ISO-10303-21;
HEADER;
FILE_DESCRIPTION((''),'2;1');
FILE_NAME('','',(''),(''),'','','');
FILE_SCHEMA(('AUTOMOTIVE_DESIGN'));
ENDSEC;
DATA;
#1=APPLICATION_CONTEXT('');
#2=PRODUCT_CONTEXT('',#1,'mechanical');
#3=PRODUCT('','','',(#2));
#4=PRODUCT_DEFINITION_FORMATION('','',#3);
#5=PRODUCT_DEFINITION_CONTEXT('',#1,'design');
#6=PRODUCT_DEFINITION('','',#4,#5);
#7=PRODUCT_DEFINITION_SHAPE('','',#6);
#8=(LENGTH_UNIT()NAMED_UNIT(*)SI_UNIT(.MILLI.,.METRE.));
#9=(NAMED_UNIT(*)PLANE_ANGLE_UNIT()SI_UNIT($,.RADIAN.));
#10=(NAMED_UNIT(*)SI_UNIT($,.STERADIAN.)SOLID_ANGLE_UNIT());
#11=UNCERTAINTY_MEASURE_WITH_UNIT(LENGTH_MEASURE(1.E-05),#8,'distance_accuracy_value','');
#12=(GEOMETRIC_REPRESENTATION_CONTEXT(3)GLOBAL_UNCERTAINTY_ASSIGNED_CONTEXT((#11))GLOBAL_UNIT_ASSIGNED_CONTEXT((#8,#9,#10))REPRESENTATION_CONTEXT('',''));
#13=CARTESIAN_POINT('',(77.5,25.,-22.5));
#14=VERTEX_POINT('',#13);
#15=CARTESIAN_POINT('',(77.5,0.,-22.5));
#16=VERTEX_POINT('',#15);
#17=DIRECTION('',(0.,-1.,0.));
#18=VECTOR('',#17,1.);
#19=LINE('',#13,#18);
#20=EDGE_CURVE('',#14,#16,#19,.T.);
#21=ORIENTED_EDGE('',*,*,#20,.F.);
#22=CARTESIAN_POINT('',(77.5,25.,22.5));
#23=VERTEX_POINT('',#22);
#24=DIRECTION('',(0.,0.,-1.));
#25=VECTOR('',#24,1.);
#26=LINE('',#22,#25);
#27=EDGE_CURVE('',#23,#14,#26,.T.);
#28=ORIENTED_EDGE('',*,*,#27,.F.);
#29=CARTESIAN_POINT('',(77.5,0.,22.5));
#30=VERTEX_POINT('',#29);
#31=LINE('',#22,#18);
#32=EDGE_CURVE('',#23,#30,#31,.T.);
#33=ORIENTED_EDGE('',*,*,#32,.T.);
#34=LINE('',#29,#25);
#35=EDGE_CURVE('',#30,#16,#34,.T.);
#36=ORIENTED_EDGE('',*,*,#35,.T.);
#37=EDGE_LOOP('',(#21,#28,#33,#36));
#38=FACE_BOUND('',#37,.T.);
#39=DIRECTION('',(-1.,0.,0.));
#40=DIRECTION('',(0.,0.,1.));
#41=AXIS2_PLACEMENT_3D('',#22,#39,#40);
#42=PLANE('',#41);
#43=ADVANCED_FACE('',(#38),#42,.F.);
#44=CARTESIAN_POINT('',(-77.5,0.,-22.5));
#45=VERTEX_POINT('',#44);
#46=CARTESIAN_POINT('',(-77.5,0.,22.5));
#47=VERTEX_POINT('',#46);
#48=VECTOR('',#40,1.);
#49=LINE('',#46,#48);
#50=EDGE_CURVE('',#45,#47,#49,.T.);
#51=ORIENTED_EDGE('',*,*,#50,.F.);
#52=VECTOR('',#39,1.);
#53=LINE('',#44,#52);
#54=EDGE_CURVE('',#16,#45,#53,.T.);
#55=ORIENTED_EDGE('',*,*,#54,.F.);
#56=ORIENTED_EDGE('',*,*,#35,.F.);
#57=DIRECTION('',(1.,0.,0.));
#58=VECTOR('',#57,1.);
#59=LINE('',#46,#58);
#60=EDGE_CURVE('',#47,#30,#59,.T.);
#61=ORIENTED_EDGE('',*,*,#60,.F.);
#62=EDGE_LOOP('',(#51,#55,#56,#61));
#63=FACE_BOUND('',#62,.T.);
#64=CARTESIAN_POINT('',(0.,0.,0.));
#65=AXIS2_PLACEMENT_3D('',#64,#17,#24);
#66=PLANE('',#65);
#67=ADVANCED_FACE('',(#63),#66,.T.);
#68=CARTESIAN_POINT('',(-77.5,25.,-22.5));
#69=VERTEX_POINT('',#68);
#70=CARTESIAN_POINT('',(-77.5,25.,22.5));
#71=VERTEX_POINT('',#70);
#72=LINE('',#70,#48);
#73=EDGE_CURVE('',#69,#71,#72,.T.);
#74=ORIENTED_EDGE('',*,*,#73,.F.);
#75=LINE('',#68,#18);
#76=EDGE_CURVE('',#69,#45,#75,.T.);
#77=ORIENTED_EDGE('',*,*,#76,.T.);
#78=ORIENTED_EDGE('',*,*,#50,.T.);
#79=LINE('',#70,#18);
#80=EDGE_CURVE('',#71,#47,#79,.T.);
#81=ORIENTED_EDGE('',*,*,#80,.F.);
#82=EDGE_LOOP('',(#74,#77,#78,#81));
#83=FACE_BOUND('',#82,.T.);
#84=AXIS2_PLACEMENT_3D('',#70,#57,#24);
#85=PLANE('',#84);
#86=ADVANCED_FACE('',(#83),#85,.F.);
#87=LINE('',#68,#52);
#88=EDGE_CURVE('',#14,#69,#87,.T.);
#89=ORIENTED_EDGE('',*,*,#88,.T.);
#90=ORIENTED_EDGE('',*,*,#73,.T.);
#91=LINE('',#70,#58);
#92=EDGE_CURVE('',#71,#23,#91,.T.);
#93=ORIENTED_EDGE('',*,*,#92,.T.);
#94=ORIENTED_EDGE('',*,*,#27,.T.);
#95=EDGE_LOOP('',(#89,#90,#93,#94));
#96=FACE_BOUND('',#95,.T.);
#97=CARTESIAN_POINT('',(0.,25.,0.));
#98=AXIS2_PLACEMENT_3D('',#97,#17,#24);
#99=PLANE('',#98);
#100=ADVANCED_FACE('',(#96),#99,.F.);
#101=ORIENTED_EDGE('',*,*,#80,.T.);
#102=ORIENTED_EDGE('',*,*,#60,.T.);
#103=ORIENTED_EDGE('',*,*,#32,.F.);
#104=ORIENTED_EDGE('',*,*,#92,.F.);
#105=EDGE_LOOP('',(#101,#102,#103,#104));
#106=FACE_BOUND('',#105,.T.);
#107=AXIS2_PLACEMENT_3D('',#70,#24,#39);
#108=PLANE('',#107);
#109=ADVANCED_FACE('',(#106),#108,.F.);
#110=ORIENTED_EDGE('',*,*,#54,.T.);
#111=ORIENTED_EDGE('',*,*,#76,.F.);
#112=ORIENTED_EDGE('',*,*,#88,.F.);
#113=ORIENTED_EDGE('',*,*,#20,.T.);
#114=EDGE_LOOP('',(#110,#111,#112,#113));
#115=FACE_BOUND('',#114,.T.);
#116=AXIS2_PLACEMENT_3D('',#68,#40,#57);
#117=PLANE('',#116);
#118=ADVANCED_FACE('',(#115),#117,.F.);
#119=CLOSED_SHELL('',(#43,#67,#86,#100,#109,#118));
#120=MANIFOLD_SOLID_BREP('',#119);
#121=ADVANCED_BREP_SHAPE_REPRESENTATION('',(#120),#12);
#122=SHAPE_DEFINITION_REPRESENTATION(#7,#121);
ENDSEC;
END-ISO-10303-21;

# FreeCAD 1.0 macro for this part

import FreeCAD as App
import Part
import Sketcher
from FreeCAD import Vector
Q = App.Units.Quantity


def add_polygon(sketch, points):
    """Adds a closed chain of lines whose ends are joined by coincident constraints."""
    first, n = sketch.GeometryCount, len(points)
    for a, b in zip(points, points[1:] + points[:1]):
        sketch.addGeometry(Part.LineSegment(App.Vector(*a, 0), App.Vector(*b, 0)), False)
    for i in range(n):
        sketch.addConstraint(Sketcher.Constraint("Coincident", first + i, 2, first + (i + 1) % n, 1))

doc = App.newDocument("Part")
body = doc.addObject("PartDesign::Body", "Body")

sketch1 = body.newObject("Sketcher::SketchObject", "Sketch")
sketch1.AttachmentSupport = (doc.getObject("XZ_Plane"), [""])
sketch1.MapMode = "FlatFace"
add_polygon(sketch1, [(-77.5, -22.5), (-77.5, 22.5), (77.5, 22.5), (77.5, -22.5)])
sketch1.addConstraint([
    Sketcher.Constraint("Vertical", 0),
    Sketcher.Constraint("Horizontal", 1),
    Sketcher.Constraint("Vertical", 2),
    Sketcher.Constraint("Horizontal", 3),
    Sketcher.Constraint("Symmetric", 0, 2, 2, 2, -1, 1),
    Sketcher.Constraint("DistanceX", 1, 1, 1, 2, Q("155 mm")),
    Sketcher.Constraint("DistanceY", 0, 1, 0, 2, Q("45 mm")),
])
pad1 = body.newObject("PartDesign::Pad", "Pad")
pad1.Profile = sketch1
pad1.Length = 25
pad1.Reversed = True

doc.recompute()
